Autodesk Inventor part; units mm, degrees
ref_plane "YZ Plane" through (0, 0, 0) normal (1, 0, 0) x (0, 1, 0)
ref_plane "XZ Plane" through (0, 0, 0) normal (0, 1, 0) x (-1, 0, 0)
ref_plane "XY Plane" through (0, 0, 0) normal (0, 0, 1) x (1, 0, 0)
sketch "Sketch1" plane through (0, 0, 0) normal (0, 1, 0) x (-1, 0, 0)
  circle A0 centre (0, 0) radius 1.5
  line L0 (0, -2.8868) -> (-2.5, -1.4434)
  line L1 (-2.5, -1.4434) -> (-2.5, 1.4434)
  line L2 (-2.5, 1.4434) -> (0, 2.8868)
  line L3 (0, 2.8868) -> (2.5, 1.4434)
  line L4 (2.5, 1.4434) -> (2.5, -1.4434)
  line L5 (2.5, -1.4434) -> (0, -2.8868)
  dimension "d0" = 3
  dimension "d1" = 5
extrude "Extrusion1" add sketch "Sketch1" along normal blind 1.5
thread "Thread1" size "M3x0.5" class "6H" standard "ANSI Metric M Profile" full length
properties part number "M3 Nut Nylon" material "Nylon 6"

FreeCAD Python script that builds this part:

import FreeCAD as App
import Part
import Sketcher

V = App.Vector
Q = App.Units.Quantity


def add_polygon(sketch, points):
    """Adds a closed chain of lines whose ends are joined by coincident constraints."""
    first, n = sketch.GeometryCount, len(points)
    for a, b in zip(points, points[1:] + points[:1]):
        sketch.addGeometry(Part.LineSegment(App.Vector(*a, 0), App.Vector(*b, 0)), False)
    for i in range(n):
        sketch.addConstraint(Sketcher.Constraint("Coincident", first + i, 2, first + (i + 1) % n, 1))

doc = App.newDocument("Part")
body = doc.addObject("PartDesign::Body", "Body")

sketch1 = doc.addObject("Sketcher::SketchObject", "Sketch")
body.addObject(sketch1)
sketch1.AttachmentSupport = (doc.XZ_Plane, [""])
sketch1.MapMode = "FlatFace"
add_polygon(sketch1, [(2.5, -1.4), (0, -2.9), (-2.5, -1.4), (-2.5, 1.4), (0, 2.9), (2.5, 1.4)])
sketch1.addGeometry(Part.Circle(V(0, 0, 0), V(0, 0, 1), 1.5), False)
sketch1.addConstraint(Sketcher.Constraint("Vertical", 2))
sketch1.addConstraint(Sketcher.Constraint("Vertical", 5))
sketch1.addConstraint(Sketcher.Constraint("Coincident", 6, 3, -1, 1))
sketch1.addConstraint(Sketcher.Constraint("Symmetric", 0, 2, 3, 2, -1, 1))
sketch1.addConstraint(Sketcher.Constraint("Symmetric", 1, 2, 4, 2, -1, 1))
sketch1.addConstraint(Sketcher.Constraint("PointOnObject", 0, 2, -2))
sketch1.addConstraint(Sketcher.Constraint("Parallel", 0, 3))
sketch1.addConstraint(Sketcher.Constraint("Horizontal", 2, 2, 4, 2))
sketch1.addConstraint(Sketcher.Constraint("Diameter", 6, Q("3 mm")))
sketch1.addConstraint(Sketcher.Constraint("DistanceX", 2, 2, 4, 2, Q("5 mm")))
sketch1.addConstraint(Sketcher.Constraint("Angle", 0, Q("-149.9996 deg")))
sketch1.addConstraint(Sketcher.Constraint("DistanceY", 2, 1, 2, 2, Q("2.8868 mm")))
pad1 = doc.addObject("PartDesign::Pad", "Pad")
body.addObject(pad1)
pad1.Profile = sketch1
pad1.Length = 1.5
pad1.Reversed = True

doc.recompute()
